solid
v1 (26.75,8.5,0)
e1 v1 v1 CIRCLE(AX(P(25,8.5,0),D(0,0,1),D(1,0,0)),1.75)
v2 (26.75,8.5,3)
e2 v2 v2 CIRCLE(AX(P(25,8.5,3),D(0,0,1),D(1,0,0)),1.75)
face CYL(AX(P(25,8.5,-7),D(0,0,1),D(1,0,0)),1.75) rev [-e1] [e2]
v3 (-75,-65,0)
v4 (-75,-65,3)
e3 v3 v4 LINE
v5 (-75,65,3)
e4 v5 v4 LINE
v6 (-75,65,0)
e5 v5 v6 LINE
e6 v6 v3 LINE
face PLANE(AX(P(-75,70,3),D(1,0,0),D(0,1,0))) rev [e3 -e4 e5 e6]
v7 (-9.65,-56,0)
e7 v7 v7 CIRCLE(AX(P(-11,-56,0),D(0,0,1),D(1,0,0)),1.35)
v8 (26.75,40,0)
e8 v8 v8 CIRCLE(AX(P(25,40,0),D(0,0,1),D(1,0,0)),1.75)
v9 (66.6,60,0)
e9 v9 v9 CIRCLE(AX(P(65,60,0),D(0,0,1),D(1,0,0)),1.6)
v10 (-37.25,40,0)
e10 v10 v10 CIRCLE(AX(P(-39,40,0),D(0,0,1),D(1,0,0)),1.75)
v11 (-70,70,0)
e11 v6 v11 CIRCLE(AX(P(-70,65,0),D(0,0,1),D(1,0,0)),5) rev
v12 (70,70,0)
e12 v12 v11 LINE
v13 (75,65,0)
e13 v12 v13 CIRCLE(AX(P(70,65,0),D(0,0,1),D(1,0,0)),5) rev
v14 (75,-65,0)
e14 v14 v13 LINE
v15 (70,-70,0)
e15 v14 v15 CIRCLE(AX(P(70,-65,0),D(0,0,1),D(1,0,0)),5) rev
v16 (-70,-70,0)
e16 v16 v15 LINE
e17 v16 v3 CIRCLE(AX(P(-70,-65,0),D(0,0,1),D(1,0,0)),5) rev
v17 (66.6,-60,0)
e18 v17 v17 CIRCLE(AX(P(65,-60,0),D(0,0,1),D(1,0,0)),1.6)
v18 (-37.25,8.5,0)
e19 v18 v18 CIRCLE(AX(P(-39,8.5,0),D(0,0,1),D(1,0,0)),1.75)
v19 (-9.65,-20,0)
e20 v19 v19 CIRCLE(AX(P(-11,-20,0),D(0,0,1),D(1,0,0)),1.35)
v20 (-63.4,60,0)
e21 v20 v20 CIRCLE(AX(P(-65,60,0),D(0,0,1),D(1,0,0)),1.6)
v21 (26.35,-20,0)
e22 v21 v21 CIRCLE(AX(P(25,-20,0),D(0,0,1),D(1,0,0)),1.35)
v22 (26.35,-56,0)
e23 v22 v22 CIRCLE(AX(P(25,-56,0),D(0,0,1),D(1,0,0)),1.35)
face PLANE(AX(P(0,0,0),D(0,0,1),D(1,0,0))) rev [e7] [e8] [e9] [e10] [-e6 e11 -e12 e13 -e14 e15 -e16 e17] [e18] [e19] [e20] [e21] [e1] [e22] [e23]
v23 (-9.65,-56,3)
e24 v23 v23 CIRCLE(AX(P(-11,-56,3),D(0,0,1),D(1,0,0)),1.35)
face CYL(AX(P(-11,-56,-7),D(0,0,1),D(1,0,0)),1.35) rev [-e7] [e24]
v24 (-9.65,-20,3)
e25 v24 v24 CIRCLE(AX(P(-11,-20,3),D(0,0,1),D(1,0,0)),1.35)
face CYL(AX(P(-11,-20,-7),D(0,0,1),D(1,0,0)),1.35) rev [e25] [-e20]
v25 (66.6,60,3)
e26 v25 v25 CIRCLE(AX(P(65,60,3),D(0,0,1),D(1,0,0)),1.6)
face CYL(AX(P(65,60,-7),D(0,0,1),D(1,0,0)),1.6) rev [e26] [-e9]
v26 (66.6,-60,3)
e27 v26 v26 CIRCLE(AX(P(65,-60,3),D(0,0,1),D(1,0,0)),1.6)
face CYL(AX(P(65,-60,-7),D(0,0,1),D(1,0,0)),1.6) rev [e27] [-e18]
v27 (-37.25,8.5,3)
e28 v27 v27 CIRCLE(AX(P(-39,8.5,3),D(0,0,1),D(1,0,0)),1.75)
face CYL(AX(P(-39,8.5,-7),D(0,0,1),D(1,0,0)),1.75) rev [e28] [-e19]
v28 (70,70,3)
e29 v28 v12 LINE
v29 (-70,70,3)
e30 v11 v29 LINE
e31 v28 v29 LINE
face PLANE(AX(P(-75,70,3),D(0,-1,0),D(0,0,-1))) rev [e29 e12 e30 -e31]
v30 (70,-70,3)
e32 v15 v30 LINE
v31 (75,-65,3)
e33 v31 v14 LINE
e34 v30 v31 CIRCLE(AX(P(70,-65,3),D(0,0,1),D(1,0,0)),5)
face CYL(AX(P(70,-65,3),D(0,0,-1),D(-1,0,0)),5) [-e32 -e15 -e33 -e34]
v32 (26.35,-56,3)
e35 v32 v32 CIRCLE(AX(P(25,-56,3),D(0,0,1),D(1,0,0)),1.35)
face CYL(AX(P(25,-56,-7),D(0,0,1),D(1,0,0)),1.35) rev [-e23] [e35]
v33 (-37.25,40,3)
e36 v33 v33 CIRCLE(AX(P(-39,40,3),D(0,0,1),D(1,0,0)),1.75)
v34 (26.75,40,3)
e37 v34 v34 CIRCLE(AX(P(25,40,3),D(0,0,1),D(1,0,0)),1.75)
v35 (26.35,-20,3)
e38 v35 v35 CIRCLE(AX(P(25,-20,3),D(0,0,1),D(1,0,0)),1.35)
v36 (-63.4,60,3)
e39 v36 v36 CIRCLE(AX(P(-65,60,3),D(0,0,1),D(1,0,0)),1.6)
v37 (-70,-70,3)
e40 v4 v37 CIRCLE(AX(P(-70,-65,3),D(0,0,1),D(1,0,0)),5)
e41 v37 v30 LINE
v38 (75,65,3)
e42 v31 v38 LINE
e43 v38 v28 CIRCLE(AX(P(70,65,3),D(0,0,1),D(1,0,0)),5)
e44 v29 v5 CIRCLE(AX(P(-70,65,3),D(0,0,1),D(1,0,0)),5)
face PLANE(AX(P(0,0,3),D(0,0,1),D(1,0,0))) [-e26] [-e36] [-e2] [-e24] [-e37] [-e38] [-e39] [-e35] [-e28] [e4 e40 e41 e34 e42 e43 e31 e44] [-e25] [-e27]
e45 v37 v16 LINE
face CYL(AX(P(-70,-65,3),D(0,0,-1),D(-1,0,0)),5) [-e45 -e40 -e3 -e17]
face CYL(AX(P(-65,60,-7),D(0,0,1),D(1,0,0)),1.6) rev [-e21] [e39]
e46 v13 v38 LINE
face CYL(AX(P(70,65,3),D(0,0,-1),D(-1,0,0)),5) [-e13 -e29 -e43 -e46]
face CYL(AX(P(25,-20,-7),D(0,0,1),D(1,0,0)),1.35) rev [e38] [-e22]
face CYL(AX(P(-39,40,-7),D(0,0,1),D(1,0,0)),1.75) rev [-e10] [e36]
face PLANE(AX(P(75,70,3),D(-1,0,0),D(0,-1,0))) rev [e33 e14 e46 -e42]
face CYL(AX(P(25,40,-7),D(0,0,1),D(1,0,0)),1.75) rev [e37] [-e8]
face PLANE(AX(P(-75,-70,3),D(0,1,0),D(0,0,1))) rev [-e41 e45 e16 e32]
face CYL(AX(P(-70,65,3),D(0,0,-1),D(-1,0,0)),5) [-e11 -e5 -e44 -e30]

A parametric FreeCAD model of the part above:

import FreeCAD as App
import Part
import Sketcher

V = App.Vector


def edges_at(feature, points):
    """Names of the edges that pass closest to the given points."""
    edges = feature.Shape.Edges
    near = lambda p: min(range(len(edges)), key=lambda i: edges[i].distToShape(Part.Vertex(*p))[0])
    return sorted({f"Edge{near(p) + 1}" for p in points})


def add_polygon(sketch, points):
    """Adds a closed chain of lines whose ends are joined by coincident constraints."""
    first, n = sketch.GeometryCount, len(points)
    for a, b in zip(points, points[1:] + points[:1]):
        sketch.addGeometry(Part.LineSegment(App.Vector(*a, 0), App.Vector(*b, 0)), False)
    for i in range(n):
        sketch.addConstraint(Sketcher.Constraint("Coincident", first + i, 2, first + (i + 1) % n, 1))

doc = App.newDocument("Part")
body = doc.addObject("PartDesign::Body", "Body")

# Sketch on XY plane
sketch1 = body.newObject("Sketcher::SketchObject", "Sketch")
sketch1.AttachmentSupport = (doc.getObject("XY_Plane"), [""])
sketch1.MapMode = "FlatFace"
add_polygon(sketch1, [(-75, 70), (-75, -70), (75, -70), (75, 70)])  # lines 0-3
sketch1.addConstraint(Sketcher.Constraint("Vertical", 0))
sketch1.addConstraint(Sketcher.Constraint("Horizontal", 1))
sketch1.addConstraint(Sketcher.Constraint("Vertical", 2))
sketch1.addConstraint(Sketcher.Constraint("Horizontal", 3))
sketch1.addConstraint(Sketcher.Constraint("Symmetric", 0, 2, 2, 2, -1, 1))
sketch1.addConstraint(Sketcher.Constraint("DistanceX", 1, 1, 1, 2, 150.0))
sketch1.addConstraint(Sketcher.Constraint("DistanceY", 0, 2, 0, 1, 140.0))
pad1 = body.newObject("PartDesign::Pad", "Pad")
pad1.Profile = sketch1
pad1.Length = 3

# Sketch on XY plane
sketch2 = body.newObject("Sketcher::SketchObject", "Sketch001")
sketch2.AttachmentSupport = (doc.getObject("XY_Plane"), [""])
sketch2.MapMode = "FlatFace"
sketch2.AttachmentOffset = App.Placement(V(0, 0, 3), App.Rotation())
sketch2.addGeometry(Part.Circle(V(25, 40, 0), V(0, 0, 1), 1.8), False)
sketch2.addGeometry(Part.Circle(V(-39, 40, 0), V(0, 0, 1), 1.8), False)
sketch2.addGeometry(Part.Circle(V(25, 8.5, 0), V(0, 0, 1), 1.8), False)
sketch2.addGeometry(Part.Circle(V(-39, 8.5, 0), V(0, 0, 1), 1.8), False)
sketch2.addConstraint(Sketcher.Constraint("Equal", 0, 1))
sketch2.addConstraint(Sketcher.Constraint("Equal", 1, 2))
sketch2.addConstraint(Sketcher.Constraint("Equal", 2, 3))
sketch2.addConstraint(Sketcher.Constraint("Horizontal", 0, 3, 1, 3))
sketch2.addConstraint(Sketcher.Constraint("Horizontal", 2, 3, 3, 3))
sketch2.addConstraint(Sketcher.Constraint("Vertical", 0, 3, 2, 3))
sketch2.addConstraint(Sketcher.Constraint("Vertical", 1, 3, 3, 3))
sketch2.addConstraint(Sketcher.Constraint("Diameter", 0, 3.5))
sketch2.addConstraint(Sketcher.Constraint("DistanceX", -1, 1, 0, 3, 25.0))
sketch2.addConstraint(Sketcher.Constraint("DistanceY", -1, 1, 0, 3, 40.0))
sketch2.addConstraint(Sketcher.Constraint("DistanceX", 1, 3, -1, 1, 39.0))
sketch2.addConstraint(Sketcher.Constraint("DistanceY", -1, 1, 2, 3, 8.5))
pocket1 = body.newObject("PartDesign::Pocket", "Pocket")
pocket1.Profile = sketch2
pocket1.Length = 10

# Sketch on XY plane
sketch3 = body.newObject("Sketcher::SketchObject", "Sketch002")
sketch3.AttachmentSupport = (doc.getObject("XY_Plane"), [""])
sketch3.MapMode = "FlatFace"
sketch3.AttachmentOffset = App.Placement(V(0, 0, 3), App.Rotation())
sketch3.addGeometry(Part.Circle(V(25, -20, 0), V(0, 0, 1), 1.4), False)
sketch3.addGeometry(Part.Circle(V(-11, -20, 0), V(0, 0, 1), 1.4), False)
sketch3.addGeometry(Part.Circle(V(-11, -56, 0), V(0, 0, 1), 1.4), False)
sketch3.addGeometry(Part.Circle(V(25, -56, 0), V(0, 0, 1), 1.4), False)
sketch3.addConstraint(Sketcher.Constraint("Equal", 0, 1))
sketch3.addConstraint(Sketcher.Constraint("Equal", 1, 2))
sketch3.addConstraint(Sketcher.Constraint("Equal", 2, 3))
sketch3.addConstraint(Sketcher.Constraint("Horizontal", 0, 3, 1, 3))
sketch3.addConstraint(Sketcher.Constraint("Horizontal", 2, 3, 3, 3))
sketch3.addConstraint(Sketcher.Constraint("Vertical", 1, 3, 2, 3))
sketch3.addConstraint(Sketcher.Constraint("Vertical", 0, 3, 3, 3))
sketch3.addConstraint(Sketcher.Constraint("Diameter", 0, 2.7))
sketch3.addConstraint(Sketcher.Constraint("DistanceX", -1, 1, 0, 3, 25.0))
sketch3.addConstraint(Sketcher.Constraint("DistanceY", 0, 3, -1, 1, 20.0))
sketch3.addConstraint(Sketcher.Constraint("DistanceX", 1, 3, -1, 1, 11.0))
sketch3.addConstraint(Sketcher.Constraint("DistanceY", 2, 3, -1, 1, 56.0))
pocket2 = body.newObject("PartDesign::Pocket", "Pocket001")
pocket2.Profile = sketch3
pocket2.Length = 10

# Sketch on XY plane
sketch4 = body.newObject("Sketcher::SketchObject", "Sketch003")
sketch4.AttachmentSupport = (doc.getObject("XY_Plane"), [""])
sketch4.MapMode = "FlatFace"
sketch4.AttachmentOffset = App.Placement(V(0, 0, 3), App.Rotation())
sketch4.addGeometry(Part.Circle(V(65, 60, 0), V(0, 0, 1), 1.6), False)
sketch4.addGeometry(Part.Circle(V(-65, 60, 0), V(0, 0, 1), 1.6), False)
sketch4.addGeometry(Part.Circle(V(65, -60, 0), V(0, 0, 1), 1.6), False)
sketch4.addConstraint(Sketcher.Constraint("Equal", 0, 1))
sketch4.addConstraint(Sketcher.Constraint("Equal", 1, 2))
sketch4.addConstraint(Sketcher.Constraint("Symmetric", 1, 3, 2, 3, -1, 1))
sketch4.addConstraint(Sketcher.Constraint("Symmetric", 0, 3, 1, 3, -2))
sketch4.addConstraint(Sketcher.Constraint("Diameter", 0, 3.2))
sketch4.addConstraint(Sketcher.Constraint("DistanceX", -1, 1, 0, 3, 65.0))
sketch4.addConstraint(Sketcher.Constraint("DistanceY", -1, 1, 0, 3, 60.0))
pocket3 = body.newObject("PartDesign::Pocket", "Pocket002")
pocket3.Profile = sketch4
pocket3.Length = 10
doc.recompute()

fillet = body.newObject("PartDesign::Fillet", "Fillet")
fillet.Base = (pocket3, edges_at(pocket3, [
    (75, -70, 1.5),
    (-75, -70, 1.5),
    (-75, 70, 1.5),
    (75, 70, 1.5),
]))
fillet.Radius = 5

doc.recompute()
